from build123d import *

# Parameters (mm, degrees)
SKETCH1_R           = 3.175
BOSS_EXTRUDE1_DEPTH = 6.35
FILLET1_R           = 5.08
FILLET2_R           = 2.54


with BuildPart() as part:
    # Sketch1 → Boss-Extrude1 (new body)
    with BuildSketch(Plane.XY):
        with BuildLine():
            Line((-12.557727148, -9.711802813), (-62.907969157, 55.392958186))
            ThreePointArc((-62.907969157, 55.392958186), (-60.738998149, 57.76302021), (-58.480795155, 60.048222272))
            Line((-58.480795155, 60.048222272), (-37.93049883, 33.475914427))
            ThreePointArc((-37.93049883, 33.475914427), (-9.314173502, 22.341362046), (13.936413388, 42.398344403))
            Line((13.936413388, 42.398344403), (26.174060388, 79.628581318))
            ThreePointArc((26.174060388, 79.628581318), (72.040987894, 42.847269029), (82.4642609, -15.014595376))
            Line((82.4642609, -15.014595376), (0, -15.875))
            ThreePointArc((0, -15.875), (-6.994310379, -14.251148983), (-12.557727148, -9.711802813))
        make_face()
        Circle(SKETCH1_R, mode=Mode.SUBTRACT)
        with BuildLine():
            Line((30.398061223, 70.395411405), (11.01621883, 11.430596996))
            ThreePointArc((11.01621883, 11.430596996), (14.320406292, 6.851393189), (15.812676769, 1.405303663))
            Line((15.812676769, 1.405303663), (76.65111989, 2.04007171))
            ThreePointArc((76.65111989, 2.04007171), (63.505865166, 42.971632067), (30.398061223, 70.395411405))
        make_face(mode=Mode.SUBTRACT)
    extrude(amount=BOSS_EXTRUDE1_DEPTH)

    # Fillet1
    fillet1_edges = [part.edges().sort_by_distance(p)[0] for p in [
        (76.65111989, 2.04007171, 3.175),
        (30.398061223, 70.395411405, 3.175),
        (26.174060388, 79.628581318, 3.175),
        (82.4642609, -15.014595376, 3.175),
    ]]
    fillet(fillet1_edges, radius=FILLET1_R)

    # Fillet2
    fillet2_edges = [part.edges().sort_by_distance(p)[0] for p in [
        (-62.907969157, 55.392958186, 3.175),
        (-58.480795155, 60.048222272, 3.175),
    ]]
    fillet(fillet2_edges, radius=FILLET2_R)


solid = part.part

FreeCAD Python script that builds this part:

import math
import FreeCAD as App
import Part
import Sketcher

V = App.Vector
Q = App.Units.Quantity


def edges_at(feature, points):
    """Names of the edges that pass closest to the given points."""
    edges = feature.Shape.Edges
    near = lambda p: min(range(len(edges)), key=lambda i: edges[i].distToShape(Part.Vertex(*p))[0])
    return sorted({f"Edge{near(p) + 1}" for p in points})

doc = App.newDocument("Part")
params = doc.addObject("Spreadsheet::Sheet", "Params")
for row, (alias, value) in enumerate([
    ("sketch1_radius", "3.3 in"),
    ("sketch1_diameter", "0.25 in"),
    ("sketch1_radius2", "0.625 in"),
    ("pad1_length", "0.25 in"),
    ("fillet_radius", "0.2 in"),
    ("fillet2_radius", "0.1 in"),
], start=1):
    params.set(f"A{row}", alias)
    params.set(f"B{row}", "=" + value)
    params.setAlias(f"B{row}", alias)

body = doc.addObject("PartDesign::Body", "Body")

sketch1 = body.newObject("Sketcher::SketchObject", "Sketch")
sketch1.AttachmentSupport = (doc.getObject("XY_Plane"), [""])
sketch1.MapMode = "FlatFace"
sketch1.addGeometry([
    Part.LineSegment(V(-62.9, 55.4, 0), V(-12.6, -9.7, 0)),
    Part.ArcOfCircle(Part.Circle(V(0, 0, 0), V(0, 0, 1), 15.9), math.radians(-142), math.radians(-90)),
    Part.LineSegment(V(0, -15.9, 0), V(82.5, -15, 0)),
    Part.ArcOfCircle(Part.Circle(V(0, 0, 0), V(0, 0, 1), 83.8), math.radians(-10), math.radians(72)),
    Part.LineSegment(V(26.2, 79.6, 0), V(13.9, 42.4, 0)),
    Part.ArcOfCircle(Part.Circle(V(-14.4, 51.7, 0), V(0, 0, 1), 29.8), math.radians(-142), math.radians(-18)),
    Part.LineSegment(V(-37.9, 33.5, 0), V(-58.5, 60, 0)),
    Part.ArcOfCircle(Part.Circle(V(0, 0, 0), V(0, 0, 1), 83.8), math.radians(134.24), math.radians(138.63)),
    Part.Circle(V(0, 0, 0), V(0, 0, 1), 3.2),
    Part.ArcOfCircle(Part.Circle(V(0, 0, 0), V(0, 0, 1), 76.7), math.radians(2), math.radians(67)),
    Part.LineSegment(V(76.7, 2, 0), V(15.8, 1.4, 0)),
    Part.ArcOfCircle(Part.Circle(V(0, 0, 0), V(0, 0, 1), 15.9), math.radians(5), math.radians(46)),
    Part.LineSegment(V(11, 11.4, 0), V(30.4, 70.4, 0)),
], False)
sketch1.addConstraint([
    Sketcher.Constraint("Tangent", 0, 2, 1, 1),
    Sketcher.Constraint("Coincident", 1, 2, 2, 1),
    Sketcher.Constraint("Coincident", 2, 2, 3, 1),
    Sketcher.Constraint("Coincident", 3, 2, 4, 1),
    Sketcher.Constraint("Tangent", 4, 2, 5, 2),
    Sketcher.Constraint("Tangent", 5, 1, 6, 1),
    Sketcher.Constraint("Coincident", 6, 2, 7, 1),
    Sketcher.Constraint("Coincident", 7, 2, 0, 1),
    Sketcher.Constraint("Coincident", 9, 1, 10, 1),
    Sketcher.Constraint("Coincident", 10, 2, 11, 1),
    Sketcher.Constraint("Coincident", 11, 2, 12, 1),
    Sketcher.Constraint("Coincident", 12, 2, 9, 2),
    Sketcher.Constraint("Coincident", 1, 3, -1, 1),
    Sketcher.Constraint("Coincident", 3, 3, -1, 1),
    Sketcher.Constraint("Coincident", 7, 3, -1, 1),
    Sketcher.Constraint("Coincident", 8, 3, -1, 1),
    Sketcher.Constraint("Coincident", 9, 3, -1, 1),
    Sketcher.Constraint("Coincident", 11, 3, -1, 1),
    Sketcher.Constraint("Equal", 3, 7),
    Sketcher.Constraint("Equal", 1, 11),
    Sketcher.Constraint("PointOnObject", 1, 2, -2),
    Sketcher.Constraint("Parallel", 0, 6),
    Sketcher.Constraint("Parallel", 2, 10),
    Sketcher.Constraint("Parallel", 4, 12),
    Sketcher.Constraint("Radius", 3, Q("3.3 in")),
    Sketcher.Constraint("Diameter", 8, Q("0.25 in")),
    Sketcher.Constraint("Radius", 1, Q("0.625 in")),
    Sketcher.Constraint("Radius", 5, 29.790885),
    Sketcher.Constraint("Radius", 9, 76.678263),
    Sketcher.Constraint("Distance", 6, 33.591699),
    Sketcher.Constraint("DistanceY", -1, 1, 5, 3, 51.700998),
    Sketcher.Constraint("DistanceX", 5, 1, -1, 1, 37.930499),
    Sketcher.Constraint("DistanceX", 3, 2, 12, 2, 4.224001),
    Sketcher.Constraint("Distance", 2, 82.468749),
    Sketcher.Constraint("Distance", 4, 39.189929),
    Sketcher.Constraint("DistanceX", -1, 1, 9, 1, 76.65112),
])
sketch1.setExpression("Constraints[24]", "Params.sketch1_radius")
sketch1.setExpression("Constraints[25]", "Params.sketch1_diameter")
sketch1.setExpression("Constraints[26]", "Params.sketch1_radius2")
pad1 = body.newObject("PartDesign::Pad", "Pad")
pad1.Profile = sketch1
pad1.setExpression("Length", "Params.pad1_length")
doc.recompute()

fillet = body.newObject("PartDesign::Fillet", "Fillet")
fillet.Base = (pad1, edges_at(pad1, [
    (76.651, 2.04, 3.175),
    (30.398, 70.395, 3.175),
    (26.174, 79.629, 3.175),
    (82.464, -15.015, 3.175),
]))
fillet.setExpression("Radius", "Params.fillet_radius")
doc.recompute()

fillet2 = body.newObject("PartDesign::Fillet", "Fillet001")
fillet2.Base = (fillet, edges_at(fillet, [(-62.908, 55.393, 3.175), (-58.481, 60.048, 3.175)]))
fillet2.setExpression("Radius", "Params.fillet2_radius")

doc.recompute()
